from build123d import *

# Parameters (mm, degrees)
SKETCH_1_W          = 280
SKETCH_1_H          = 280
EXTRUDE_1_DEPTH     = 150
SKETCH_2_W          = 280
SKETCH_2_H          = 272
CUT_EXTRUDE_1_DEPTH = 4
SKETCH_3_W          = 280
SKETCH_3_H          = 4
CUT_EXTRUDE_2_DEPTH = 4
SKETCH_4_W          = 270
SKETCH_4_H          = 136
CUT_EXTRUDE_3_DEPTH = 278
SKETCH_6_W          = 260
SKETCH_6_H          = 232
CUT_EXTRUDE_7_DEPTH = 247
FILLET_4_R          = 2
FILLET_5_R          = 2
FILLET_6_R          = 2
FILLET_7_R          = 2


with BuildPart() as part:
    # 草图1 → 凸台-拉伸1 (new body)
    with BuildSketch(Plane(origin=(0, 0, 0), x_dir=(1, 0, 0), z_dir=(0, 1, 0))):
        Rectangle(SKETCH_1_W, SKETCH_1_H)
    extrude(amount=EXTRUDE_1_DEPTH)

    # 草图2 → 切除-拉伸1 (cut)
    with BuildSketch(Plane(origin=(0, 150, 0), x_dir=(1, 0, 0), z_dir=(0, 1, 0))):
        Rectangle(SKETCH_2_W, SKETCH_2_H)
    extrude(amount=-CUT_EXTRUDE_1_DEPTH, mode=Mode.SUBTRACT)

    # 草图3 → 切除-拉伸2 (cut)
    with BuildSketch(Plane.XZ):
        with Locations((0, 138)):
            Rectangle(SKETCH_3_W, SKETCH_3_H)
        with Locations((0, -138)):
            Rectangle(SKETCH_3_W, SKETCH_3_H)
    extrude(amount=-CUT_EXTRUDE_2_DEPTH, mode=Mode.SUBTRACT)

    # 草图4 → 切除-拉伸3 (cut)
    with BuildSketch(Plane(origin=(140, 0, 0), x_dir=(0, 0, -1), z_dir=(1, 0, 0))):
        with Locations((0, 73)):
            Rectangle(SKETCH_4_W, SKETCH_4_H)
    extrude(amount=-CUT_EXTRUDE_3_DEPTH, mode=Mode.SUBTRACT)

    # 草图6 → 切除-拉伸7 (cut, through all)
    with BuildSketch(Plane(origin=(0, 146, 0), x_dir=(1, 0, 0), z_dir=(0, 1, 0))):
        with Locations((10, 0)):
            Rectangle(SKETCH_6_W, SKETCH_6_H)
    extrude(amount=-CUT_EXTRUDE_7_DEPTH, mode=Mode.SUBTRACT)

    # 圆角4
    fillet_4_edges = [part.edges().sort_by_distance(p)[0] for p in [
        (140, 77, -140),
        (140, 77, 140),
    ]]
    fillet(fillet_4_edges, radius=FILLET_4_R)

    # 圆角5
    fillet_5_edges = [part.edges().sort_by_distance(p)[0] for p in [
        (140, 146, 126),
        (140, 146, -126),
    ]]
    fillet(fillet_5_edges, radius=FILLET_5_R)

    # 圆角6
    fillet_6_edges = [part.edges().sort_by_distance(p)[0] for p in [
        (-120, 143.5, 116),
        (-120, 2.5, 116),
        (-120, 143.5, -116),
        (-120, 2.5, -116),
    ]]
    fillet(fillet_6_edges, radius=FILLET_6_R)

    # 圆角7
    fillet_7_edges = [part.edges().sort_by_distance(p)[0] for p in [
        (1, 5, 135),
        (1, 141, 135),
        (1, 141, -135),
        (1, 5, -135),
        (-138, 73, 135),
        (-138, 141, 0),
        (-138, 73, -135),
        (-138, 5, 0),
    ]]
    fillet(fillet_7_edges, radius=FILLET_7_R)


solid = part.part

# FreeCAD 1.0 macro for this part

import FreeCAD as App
import Part
import Sketcher
Q = App.Units.Quantity


def edges_at(feature, points):
    """Names of the edges that pass closest to the given points."""
    edges = feature.Shape.Edges
    near = lambda p: min(range(len(edges)), key=lambda i: edges[i].distToShape(Part.Vertex(*p))[0])
    return sorted({f"Edge{near(p) + 1}" for p in points})


def add_polygon(sketch, points):
    """Adds a closed chain of lines whose ends are joined by coincident constraints."""
    first, n = sketch.GeometryCount, len(points)
    for a, b in zip(points, points[1:] + points[:1]):
        sketch.addGeometry(Part.LineSegment(App.Vector(*a, 0), App.Vector(*b, 0)), False)
    for i in range(n):
        sketch.addConstraint(Sketcher.Constraint("Coincident", first + i, 2, first + (i + 1) % n, 1))

doc = App.newDocument("Part")
params = doc.addObject("Spreadsheet::Sheet", "Params")
for row, (alias, value) in enumerate([
    ("sketch1_width", "280 mm"),
    ("pad1_length", "150 mm"),
    ("sketch2_width", "280 mm"),
    ("sketch2_height", "272 mm"),
    ("pocket1_length", "4 mm"),
    ("sketch3_width", "280 mm"),
    ("sketch3_height", "4 mm"),
    ("pocket2_length", "4 mm"),
    ("sketch4_width", "136 mm"),
    ("sketch4_height", "270 mm"),
    ("pocket3_length", "278 mm"),
    ("sketch5_width", "260 mm"),
    ("sketch5_height", "232 mm"),
    ("fillet_radius", "2 mm"),
    ("fillet2_radius", "2 mm"),
    ("fillet3_radius", "2 mm"),
    ("fillet4_radius", "2 mm"),
], start=1):
    params.set(f"A{row}", alias)
    params.set(f"B{row}", "=" + value)
    params.setAlias(f"B{row}", alias)

body = doc.addObject("PartDesign::Body", "Body")

# Sketch on XZ plane
sketch1 = doc.addObject("Sketcher::SketchObject", "Sketch")
body.addObject(sketch1)
sketch1.AttachmentSupport = (doc.XZ_Plane, [""])
sketch1.MapMode = "FlatFace"
add_polygon(sketch1, [(-140, -140), (-140, 140), (140, 140), (140, -140)])  # lines 0-3
sketch1.addConstraint([
    Sketcher.Constraint("Vertical", 0),
    Sketcher.Constraint("Horizontal", 1),
    Sketcher.Constraint("Vertical", 2),
    Sketcher.Constraint("Horizontal", 3),
    Sketcher.Constraint("Symmetric", 0, 2, 2, 2, -1, 1),
    Sketcher.Constraint("Equal", 3, 0),
    Sketcher.Constraint("DistanceX", 1, 1, 1, 2, Q("280 mm")),
])
sketch1.setExpression("Constraints[10]", "Params.sketch1_width")
pad1 = doc.addObject("PartDesign::Pad", "Pad")
body.addObject(pad1)
pad1.Profile = sketch1
pad1.setExpression("Length", "Params.pad1_length")
pad1.Reversed = True

# Sketch on XZ plane
sketch2 = doc.addObject("Sketcher::SketchObject", "Sketch001")
body.addObject(sketch2)
sketch2.AttachmentSupport = (doc.XZ_Plane, [""])
sketch2.MapMode = "FlatFace"
sketch2.AttachmentOffset = App.Placement(App.Vector(0, 0, -150), App.Rotation())
add_polygon(sketch2, [(-140, -136), (-140, 136), (140, 136), (140, -136)])  # lines 0-3
sketch2.addConstraint([
    Sketcher.Constraint("Vertical", 0),
    Sketcher.Constraint("Horizontal", 1),
    Sketcher.Constraint("Vertical", 2),
    Sketcher.Constraint("Horizontal", 3),
    Sketcher.Constraint("Symmetric", 0, 2, 2, 2, -1, 1),
    Sketcher.Constraint("DistanceX", 1, 1, 1, 2, Q("280 mm")),
    Sketcher.Constraint("DistanceY", 0, 1, 0, 2, Q("272 mm")),
])
sketch2.setExpression("Constraints[9]", "Params.sketch2_width")
sketch2.setExpression("Constraints[10]", "Params.sketch2_height")
pocket1 = doc.addObject("PartDesign::Pocket", "Pocket")
body.addObject(pocket1)
pocket1.Profile = sketch2
pocket1.setExpression("Length", "Params.pocket1_length")
pocket1.Reversed = True

# Sketch on XZ plane
sketch3 = doc.addObject("Sketcher::SketchObject", "Sketch002")
body.addObject(sketch3)
sketch3.AttachmentSupport = (doc.XZ_Plane, [""])
sketch3.MapMode = "FlatFace"
add_polygon(sketch3, [(-140, 140), (-140, 136), (140, 136), (140, 140)])  # lines 0-3
add_polygon(sketch3, [(-140, -136), (-140, -140), (140, -140), (140, -136)])  # lines 4-7
sketch3.addConstraint([
    Sketcher.Constraint("Vertical", 0),
    Sketcher.Constraint("Horizontal", 1),
    Sketcher.Constraint("Vertical", 2),
    Sketcher.Constraint("Horizontal", 3),
    Sketcher.Constraint("Vertical", 4),
    Sketcher.Constraint("Horizontal", 5),
    Sketcher.Constraint("Vertical", 6),
    Sketcher.Constraint("Horizontal", 7),
    Sketcher.Constraint("Symmetric", 2, 2, 4, 2, -1, 1),
    Sketcher.Constraint("Symmetric", 0, 2, 6, 2, -1, 1),
    Sketcher.Constraint("Vertical", 3, 2, 4, 2),
    Sketcher.Constraint("DistanceX", 1, 1, 1, 2, Q("280 mm")),
    Sketcher.Constraint("DistanceY", 0, 2, 0, 1, Q("4 mm")),
    Sketcher.Constraint("DistanceY", -1, 1, 0, 2, Q("136 mm")),
])
sketch3.setExpression("Constraints[19]", "Params.sketch3_width")
sketch3.setExpression("Constraints[20]", "Params.sketch3_height")
pocket2 = doc.addObject("PartDesign::Pocket", "Pocket001")
body.addObject(pocket2)
pocket2.Profile = sketch3
pocket2.setExpression("Length", "Params.pocket2_length")

# Sketch on YZ plane
sketch4 = doc.addObject("Sketcher::SketchObject", "Sketch003")
body.addObject(sketch4)
sketch4.AttachmentSupport = (doc.YZ_Plane, [""])
sketch4.MapMode = "FlatFace"
sketch4.AttachmentOffset = App.Placement(App.Vector(0, 0, 140), App.Rotation())
add_polygon(sketch4, [(141, 135), (5, 135), (5, -135), (141, -135)])  # lines 0-3
sketch4.addConstraint([
    Sketcher.Constraint("Horizontal", 0),
    Sketcher.Constraint("Vertical", 1),
    Sketcher.Constraint("Horizontal", 2),
    Sketcher.Constraint("Vertical", 3),
    Sketcher.Constraint("DistanceX", 0, 2, 0, 1, Q("136 mm")),
    Sketcher.Constraint("DistanceY", 1, 2, 1, 1, Q("270 mm")),
    Sketcher.Constraint("DistanceX", -1, 1, 0, 2, Q("5 mm")),
    Sketcher.Constraint("DistanceY", -1, 1, 0, 2, Q("135 mm")),
])
sketch4.setExpression("Constraints[8]", "Params.sketch4_width")
sketch4.setExpression("Constraints[9]", "Params.sketch4_height")
pocket3 = doc.addObject("PartDesign::Pocket", "Pocket002")
body.addObject(pocket3)
pocket3.Profile = sketch4
pocket3.setExpression("Length", "Params.pocket3_length")

# Sketch on XZ plane
sketch5 = doc.addObject("Sketcher::SketchObject", "Sketch004")
body.addObject(sketch5)
sketch5.AttachmentSupport = (doc.XZ_Plane, [""])
sketch5.MapMode = "FlatFace"
sketch5.AttachmentOffset = App.Placement(App.Vector(0, 0, -146), App.Rotation())
add_polygon(sketch5, [(-120, -116), (-120, 116), (140, 116), (140, -116)])  # lines 0-3
sketch5.addConstraint([
    Sketcher.Constraint("Vertical", 0),
    Sketcher.Constraint("Horizontal", 1),
    Sketcher.Constraint("Vertical", 2),
    Sketcher.Constraint("Horizontal", 3),
    Sketcher.Constraint("DistanceX", 1, 1, 1, 2, Q("260 mm")),
    Sketcher.Constraint("DistanceY", 0, 1, 0, 2, Q("232 mm")),
    Sketcher.Constraint("DistanceX", 0, 2, -1, 1, Q("120 mm")),
    Sketcher.Constraint("DistanceY", -1, 1, 0, 2, Q("116 mm")),
])
sketch5.setExpression("Constraints[8]", "Params.sketch5_width")
sketch5.setExpression("Constraints[9]", "Params.sketch5_height")
pocket4 = doc.addObject("PartDesign::Pocket", "Pocket003")
body.addObject(pocket4)
pocket4.Profile = sketch5
pocket4.Type = "ThroughAll"
pocket4.Reversed = True
doc.recompute()

fillet = doc.addObject("PartDesign::Fillet", "Fillet")
body.addObject(fillet)
fillet.Base = (pocket4, edges_at(pocket4, [(140, 77, -140), (140, 77, 140)]))
fillet.setExpression("Radius", "Params.fillet_radius")
doc.recompute()

fillet2 = doc.addObject("PartDesign::Fillet", "Fillet001")
body.addObject(fillet2)
fillet2.Base = (fillet, edges_at(fillet, [(140, 146, 126), (140, 146, -126)]))
fillet2.setExpression("Radius", "Params.fillet2_radius")
doc.recompute()

fillet3 = doc.addObject("PartDesign::Fillet", "Fillet002")
body.addObject(fillet3)
fillet3.Base = (fillet2, edges_at(fillet2, [
    (-120, 143.5, 116),
    (-120, 2.5, 116),
    (-120, 143.5, -116),
    (-120, 2.5, -116),
]))
fillet3.setExpression("Radius", "Params.fillet3_radius")
doc.recompute()

fillet4 = doc.addObject("PartDesign::Fillet", "Fillet003")
body.addObject(fillet4)
fillet4.Base = (fillet3, edges_at(fillet3, [
    (1, 5, 135),
    (1, 141, 135),
    (1, 141, -135),
    (1, 5, -135),
    (-138, 73, 135),
    (-138, 141, 0),
    (-138, 73, -135),
    (-138, 5, 0),
]))
fillet4.setExpression("Radius", "Params.fillet4_radius")

doc.recompute()
